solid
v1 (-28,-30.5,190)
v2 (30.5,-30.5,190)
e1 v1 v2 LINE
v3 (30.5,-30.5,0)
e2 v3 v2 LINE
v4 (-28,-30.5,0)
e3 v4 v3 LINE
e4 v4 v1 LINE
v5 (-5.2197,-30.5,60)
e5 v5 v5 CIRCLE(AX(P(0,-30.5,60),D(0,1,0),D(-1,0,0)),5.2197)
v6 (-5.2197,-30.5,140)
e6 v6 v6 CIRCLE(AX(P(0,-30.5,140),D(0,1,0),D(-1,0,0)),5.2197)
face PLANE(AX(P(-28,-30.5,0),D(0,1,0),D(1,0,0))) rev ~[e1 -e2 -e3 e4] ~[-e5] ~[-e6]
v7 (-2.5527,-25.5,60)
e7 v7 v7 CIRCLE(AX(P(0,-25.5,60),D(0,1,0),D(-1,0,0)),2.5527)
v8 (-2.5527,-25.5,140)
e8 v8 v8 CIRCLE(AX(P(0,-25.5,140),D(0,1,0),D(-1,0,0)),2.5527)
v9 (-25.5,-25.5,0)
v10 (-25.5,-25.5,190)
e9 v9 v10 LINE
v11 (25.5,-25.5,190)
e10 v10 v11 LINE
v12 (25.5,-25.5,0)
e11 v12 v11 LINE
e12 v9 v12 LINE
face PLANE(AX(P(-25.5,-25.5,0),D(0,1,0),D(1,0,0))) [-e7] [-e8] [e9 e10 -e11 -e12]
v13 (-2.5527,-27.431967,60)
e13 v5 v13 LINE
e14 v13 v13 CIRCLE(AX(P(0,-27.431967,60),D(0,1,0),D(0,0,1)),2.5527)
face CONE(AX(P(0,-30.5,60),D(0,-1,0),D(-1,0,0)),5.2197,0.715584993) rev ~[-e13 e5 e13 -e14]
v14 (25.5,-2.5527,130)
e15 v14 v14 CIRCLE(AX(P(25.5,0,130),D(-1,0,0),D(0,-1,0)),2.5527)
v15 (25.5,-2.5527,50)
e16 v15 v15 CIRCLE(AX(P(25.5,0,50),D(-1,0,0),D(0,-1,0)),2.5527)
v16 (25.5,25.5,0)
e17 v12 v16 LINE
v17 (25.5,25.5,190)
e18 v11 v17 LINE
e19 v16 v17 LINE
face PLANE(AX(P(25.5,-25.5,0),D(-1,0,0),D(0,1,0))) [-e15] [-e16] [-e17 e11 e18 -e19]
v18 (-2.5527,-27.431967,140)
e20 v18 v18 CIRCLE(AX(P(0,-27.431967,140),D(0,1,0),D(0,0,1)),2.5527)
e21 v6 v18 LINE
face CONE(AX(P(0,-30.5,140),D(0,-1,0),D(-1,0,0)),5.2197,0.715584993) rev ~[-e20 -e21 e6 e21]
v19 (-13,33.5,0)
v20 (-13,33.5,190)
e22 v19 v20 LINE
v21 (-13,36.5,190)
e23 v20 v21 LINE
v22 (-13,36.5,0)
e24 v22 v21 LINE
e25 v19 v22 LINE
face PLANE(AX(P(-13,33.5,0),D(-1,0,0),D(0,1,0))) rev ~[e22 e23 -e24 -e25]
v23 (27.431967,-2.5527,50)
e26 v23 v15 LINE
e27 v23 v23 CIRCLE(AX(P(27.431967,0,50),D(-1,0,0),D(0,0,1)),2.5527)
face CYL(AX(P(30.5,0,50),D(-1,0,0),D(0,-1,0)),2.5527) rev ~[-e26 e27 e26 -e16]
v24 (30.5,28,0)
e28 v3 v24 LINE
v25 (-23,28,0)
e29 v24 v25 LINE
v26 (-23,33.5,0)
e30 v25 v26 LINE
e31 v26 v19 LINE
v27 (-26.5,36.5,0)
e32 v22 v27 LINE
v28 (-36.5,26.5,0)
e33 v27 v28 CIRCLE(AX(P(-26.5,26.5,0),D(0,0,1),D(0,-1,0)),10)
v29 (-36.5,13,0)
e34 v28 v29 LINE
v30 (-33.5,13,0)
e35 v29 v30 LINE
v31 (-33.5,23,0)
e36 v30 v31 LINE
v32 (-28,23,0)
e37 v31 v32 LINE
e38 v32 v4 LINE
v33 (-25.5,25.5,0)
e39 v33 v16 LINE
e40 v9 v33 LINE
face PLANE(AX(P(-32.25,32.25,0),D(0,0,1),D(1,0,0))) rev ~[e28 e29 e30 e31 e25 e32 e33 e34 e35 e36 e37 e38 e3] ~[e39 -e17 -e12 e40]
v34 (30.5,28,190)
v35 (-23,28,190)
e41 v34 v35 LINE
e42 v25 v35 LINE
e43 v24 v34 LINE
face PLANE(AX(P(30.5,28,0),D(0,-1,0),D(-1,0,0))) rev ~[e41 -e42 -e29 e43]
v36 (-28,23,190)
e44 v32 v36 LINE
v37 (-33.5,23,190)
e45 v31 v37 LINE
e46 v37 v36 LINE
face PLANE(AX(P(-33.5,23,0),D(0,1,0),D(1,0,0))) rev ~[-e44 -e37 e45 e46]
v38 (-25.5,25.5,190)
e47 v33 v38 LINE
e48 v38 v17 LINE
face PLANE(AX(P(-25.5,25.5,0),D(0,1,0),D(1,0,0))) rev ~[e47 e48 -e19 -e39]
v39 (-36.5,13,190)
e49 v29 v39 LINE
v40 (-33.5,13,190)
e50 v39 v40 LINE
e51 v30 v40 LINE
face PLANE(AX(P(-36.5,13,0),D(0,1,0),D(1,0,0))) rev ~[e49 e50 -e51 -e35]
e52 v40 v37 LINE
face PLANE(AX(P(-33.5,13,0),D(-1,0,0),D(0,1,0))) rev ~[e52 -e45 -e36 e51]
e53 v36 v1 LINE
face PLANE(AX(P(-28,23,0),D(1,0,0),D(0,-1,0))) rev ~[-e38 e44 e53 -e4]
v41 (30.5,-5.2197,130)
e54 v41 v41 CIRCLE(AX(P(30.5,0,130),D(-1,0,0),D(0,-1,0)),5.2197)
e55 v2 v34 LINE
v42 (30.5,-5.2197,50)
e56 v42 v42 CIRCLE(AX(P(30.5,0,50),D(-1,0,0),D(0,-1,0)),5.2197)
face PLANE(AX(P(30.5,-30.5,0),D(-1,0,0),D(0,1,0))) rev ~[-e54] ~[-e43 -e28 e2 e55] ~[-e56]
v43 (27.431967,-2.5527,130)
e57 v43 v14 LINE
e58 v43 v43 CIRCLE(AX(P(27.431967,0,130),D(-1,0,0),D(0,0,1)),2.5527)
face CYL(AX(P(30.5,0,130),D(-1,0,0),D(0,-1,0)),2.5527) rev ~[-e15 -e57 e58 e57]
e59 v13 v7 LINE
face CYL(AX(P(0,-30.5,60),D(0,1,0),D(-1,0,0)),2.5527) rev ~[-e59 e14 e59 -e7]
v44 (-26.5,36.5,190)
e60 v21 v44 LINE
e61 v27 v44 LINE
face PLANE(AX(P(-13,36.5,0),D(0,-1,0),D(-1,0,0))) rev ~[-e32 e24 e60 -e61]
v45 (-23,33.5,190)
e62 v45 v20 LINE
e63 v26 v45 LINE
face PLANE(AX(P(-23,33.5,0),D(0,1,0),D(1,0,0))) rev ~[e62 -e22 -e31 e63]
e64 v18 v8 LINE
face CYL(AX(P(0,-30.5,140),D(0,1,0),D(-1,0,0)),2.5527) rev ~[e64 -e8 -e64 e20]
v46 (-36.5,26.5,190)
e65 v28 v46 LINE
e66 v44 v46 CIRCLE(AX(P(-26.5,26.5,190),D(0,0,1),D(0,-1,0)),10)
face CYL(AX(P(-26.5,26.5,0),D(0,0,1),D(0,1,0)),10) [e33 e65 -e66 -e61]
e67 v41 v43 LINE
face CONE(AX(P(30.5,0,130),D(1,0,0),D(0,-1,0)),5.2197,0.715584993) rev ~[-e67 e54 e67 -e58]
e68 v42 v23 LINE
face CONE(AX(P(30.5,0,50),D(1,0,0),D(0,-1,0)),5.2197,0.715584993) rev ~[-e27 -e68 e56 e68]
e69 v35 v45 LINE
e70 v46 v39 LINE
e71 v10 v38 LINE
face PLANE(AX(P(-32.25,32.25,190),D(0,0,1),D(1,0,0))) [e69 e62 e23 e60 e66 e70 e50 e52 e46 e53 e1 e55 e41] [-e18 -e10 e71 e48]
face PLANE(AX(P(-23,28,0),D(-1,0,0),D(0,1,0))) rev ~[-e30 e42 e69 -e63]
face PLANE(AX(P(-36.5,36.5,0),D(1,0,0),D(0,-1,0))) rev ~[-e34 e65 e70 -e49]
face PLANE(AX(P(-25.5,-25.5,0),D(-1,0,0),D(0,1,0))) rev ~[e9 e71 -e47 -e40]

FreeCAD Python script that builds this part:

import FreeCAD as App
import Part
import Sketcher

V = App.Vector


def edges_at(feature, points):
    """Names of the edges that pass closest to the given points."""
    edges = feature.Shape.Edges
    near = lambda p: min(range(len(edges)), key=lambda i: edges[i].distToShape(Part.Vertex(*p))[0])
    return sorted({f"Edge{near(p) + 1}" for p in points})

doc = App.newDocument("Part")
body = doc.addObject("PartDesign::Body", "Body")

sketch1 = doc.addObject("Sketcher::SketchObject", "Sketch")
body.addObject(sketch1)
sketch1.AttachmentSupport = (doc.XY_Plane, [""])
sketch1.MapMode = "FlatFace"
sketch1.addGeometry(Part.LineSegment(V(-23, 33.5, 0), V(-13, 33.5, 0)), False)
sketch1.addGeometry(Part.LineSegment(V(-13, 33.5, 0), V(-13, 36.5, 0)), False)
sketch1.addGeometry(Part.LineSegment(V(-13, 36.5, 0), V(-36.5, 36.5, 0)), False)
sketch1.addGeometry(Part.LineSegment(V(-36.5, 36.5, 0), V(-36.5, 13, 0)), False)
sketch1.addGeometry(Part.LineSegment(V(-36.5, 13, 0), V(-33.5, 13, 0)), False)
sketch1.addGeometry(Part.LineSegment(V(-33.5, 13, 0), V(-33.5, 23, 0)), False)
sketch1.addGeometry(Part.LineSegment(V(-33.5, 23, 0), V(-28, 23, 0)), False)
sketch1.addGeometry(Part.LineSegment(V(-28, 23, 0), V(-28, -30.5, 0)), False)
sketch1.addGeometry(Part.LineSegment(V(-28, -30.5, 0), V(30.5, -30.5, 0)), False)
sketch1.addGeometry(Part.LineSegment(V(30.5, -30.5, 0), V(30.5, 28, 0)), False)
sketch1.addGeometry(Part.LineSegment(V(30.5, 28, 0), V(-23, 28, 0)), False)
sketch1.addGeometry(Part.LineSegment(V(-23, 28, 0), V(-23, 33.5, 0)), False)
sketch1.addGeometry(Part.LineSegment(V(25.5, -25.5, 0), V(-25.5, -25.5, 0)), False)
sketch1.addGeometry(Part.LineSegment(V(-25.5, -25.5, 0), V(-25.5, 25.5, 0)), False)
sketch1.addGeometry(Part.LineSegment(V(-25.5, 25.5, 0), V(25.5, 25.5, 0)), False)
sketch1.addGeometry(Part.LineSegment(V(25.5, 25.5, 0), V(25.5, -25.5, 0)), False)
sketch1.addConstraint(Sketcher.Constraint("Coincident", 0, 2, 1, 1))
sketch1.addConstraint(Sketcher.Constraint("Coincident", 1, 2, 2, 1))
sketch1.addConstraint(Sketcher.Constraint("Coincident", 2, 2, 3, 1))
sketch1.addConstraint(Sketcher.Constraint("Coincident", 3, 2, 4, 1))
sketch1.addConstraint(Sketcher.Constraint("Coincident", 4, 2, 5, 1))
sketch1.addConstraint(Sketcher.Constraint("Coincident", 5, 2, 6, 1))
sketch1.addConstraint(Sketcher.Constraint("Coincident", 6, 2, 7, 1))
sketch1.addConstraint(Sketcher.Constraint("Coincident", 7, 2, 8, 1))
sketch1.addConstraint(Sketcher.Constraint("Coincident", 8, 2, 9, 1))
sketch1.addConstraint(Sketcher.Constraint("Coincident", 9, 2, 10, 1))
sketch1.addConstraint(Sketcher.Constraint("Coincident", 10, 2, 11, 1))
sketch1.addConstraint(Sketcher.Constraint("Coincident", 11, 2, 0, 1))
sketch1.addConstraint(Sketcher.Constraint("Coincident", 12, 2, 13, 1))
sketch1.addConstraint(Sketcher.Constraint("Coincident", 13, 2, 14, 1))
sketch1.addConstraint(Sketcher.Constraint("Coincident", 14, 2, 15, 1))
sketch1.addConstraint(Sketcher.Constraint("Coincident", 15, 2, 12, 1))
sketch1.addConstraint(Sketcher.Constraint("Horizontal", 0))
sketch1.addConstraint(Sketcher.Constraint("Vertical", 1))
sketch1.addConstraint(Sketcher.Constraint("Horizontal", 2))
sketch1.addConstraint(Sketcher.Constraint("Vertical", 3))
sketch1.addConstraint(Sketcher.Constraint("Horizontal", 4))
sketch1.addConstraint(Sketcher.Constraint("Vertical", 5))
sketch1.addConstraint(Sketcher.Constraint("Horizontal", 6))
sketch1.addConstraint(Sketcher.Constraint("Vertical", 7))
sketch1.addConstraint(Sketcher.Constraint("Horizontal", 8))
sketch1.addConstraint(Sketcher.Constraint("Vertical", 9))
sketch1.addConstraint(Sketcher.Constraint("Horizontal", 10))
sketch1.addConstraint(Sketcher.Constraint("Vertical", 11))
sketch1.addConstraint(Sketcher.Constraint("Horizontal", 12))
sketch1.addConstraint(Sketcher.Constraint("Vertical", 13))
sketch1.addConstraint(Sketcher.Constraint("Horizontal", 14))
sketch1.addConstraint(Sketcher.Constraint("Vertical", 15))
sketch1.addConstraint(Sketcher.Constraint("Symmetric", 12, 2, 14, 2, -1, 1))
sketch1.addConstraint(Sketcher.Constraint("Equal", 4, 1))
sketch1.addConstraint(Sketcher.Constraint("Equal", 2, 3))
sketch1.addConstraint(Sketcher.Constraint("Equal", 0, 5))
sketch1.addConstraint(Sketcher.Constraint("Equal", 10, 7))
sketch1.addConstraint(Sketcher.Constraint("Equal", 8, 9))
sketch1.addConstraint(Sketcher.Constraint("Equal", 14, 13))
sketch1.addConstraint(Sketcher.Constraint("DistanceX", 0, 1, 0, 2, 10.0))
sketch1.addConstraint(Sketcher.Constraint("DistanceX", 4, 1, 4, 2, 3.0))
sketch1.addConstraint(Sketcher.Constraint("DistanceX", 12, 2, 12, 1, 51.0))
sketch1.addConstraint(Sketcher.Constraint("DistanceX", 2, 2, 2, 1, 23.5))
sketch1.addConstraint(Sketcher.Constraint("DistanceX", 6, 1, 6, 2, 5.5))
sketch1.addConstraint(Sketcher.Constraint("DistanceX", 8, 1, 8, 2, 58.5))
sketch1.addConstraint(Sketcher.Constraint("DistanceX", 0, 2, -1, 1, 13.0))
sketch1.addConstraint(Sketcher.Constraint("DistanceY", -1, 1, 3, 2, 13.0))
pad1 = doc.addObject("PartDesign::Pad", "Pad")
body.addObject(pad1)
pad1.Profile = sketch1
pad1.Length = 190
doc.recompute()

fillet = doc.addObject("PartDesign::Fillet", "Fillet")
body.addObject(fillet)
fillet.Base = (pad1, edges_at(pad1, [(-36.5, 36.5, 95)]))
fillet.Radius = 10

sketch2 = doc.addObject("Sketcher::SketchObject", "Sketch001")
body.addObject(sketch2)
sketch2.AttachmentSupport = (doc.XZ_Plane, [""])
sketch2.MapMode = "FlatFace"
sketch2.AttachmentOffset = App.Placement(V(0, 0, 30.5), App.Rotation())
sketch2.addGeometry(Part.Circle(V(0, 140, 0), V(0, 0, 1), 2.6), False)
sketch2.addGeometry(Part.Circle(V(0, 60, 0), V(0, 0, 1), 2.6), False)
sketch2.addConstraint(Sketcher.Constraint("Equal", 0, 1))
sketch2.addConstraint(Sketcher.Constraint("PointOnObject", 0, 3, -2))
sketch2.addConstraint(Sketcher.Constraint("PointOnObject", 1, 3, -2))
sketch2.addConstraint(Sketcher.Constraint("DistanceY", -1, 1, 0, 3, 140.0))
sketch2.addConstraint(Sketcher.Constraint("DistanceY", -1, 1, 1, 3, 60.0))
sketch2.addConstraint(Sketcher.Constraint("Diameter", 0, 5.1054))
doc.recompute()
hole = doc.addObject("PartDesign::Hole", "Hole")
body.addObject(hole)
hole.Profile = sketch2
hole.ThreadType = "None"
hole.Diameter = 5.1054
hole.DepthType = "Dimension"
hole.Depth = 12
hole.DrillPoint = "Angled"
hole.DrillPointAngle = 118
hole.HoleCutType = "Countersink"
hole.HoleCutDiameter = 10.4394
hole.HoleCutCountersinkAngle = 82

sketch3 = doc.addObject("Sketcher::SketchObject", "Sketch002")
body.addObject(sketch3)
sketch3.AttachmentSupport = (doc.YZ_Plane, [""])
sketch3.MapMode = "FlatFace"
sketch3.AttachmentOffset = App.Placement(V(0, 0, 30.5), App.Rotation())
sketch3.addGeometry(Part.Circle(V(0, 130, 0), V(0, 0, 1), 2.6), False)
sketch3.addGeometry(Part.Circle(V(0, 50, 0), V(0, 0, 1), 2.6), False)
sketch3.addConstraint(Sketcher.Constraint("Equal", 0, 1))
sketch3.addConstraint(Sketcher.Constraint("PointOnObject", 0, 3, -2))
sketch3.addConstraint(Sketcher.Constraint("PointOnObject", 1, 3, -2))
sketch3.addConstraint(Sketcher.Constraint("DistanceY", -1, 1, 0, 3, 130.0))
sketch3.addConstraint(Sketcher.Constraint("DistanceY", -1, 1, 1, 3, 50.0))
sketch3.addConstraint(Sketcher.Constraint("Diameter", 0, 5.1054))
doc.recompute()
hole2 = doc.addObject("PartDesign::Hole", "Hole001")
body.addObject(hole2)
hole2.Profile = sketch3
hole2.ThreadType = "None"
hole2.Diameter = 5.1054
hole2.DepthType = "Dimension"
hole2.Depth = 12
hole2.DrillPoint = "Angled"
hole2.DrillPointAngle = 118
hole2.HoleCutType = "Countersink"
hole2.HoleCutDiameter = 10.4394
hole2.HoleCutCountersinkAngle = 82

doc.recompute()
